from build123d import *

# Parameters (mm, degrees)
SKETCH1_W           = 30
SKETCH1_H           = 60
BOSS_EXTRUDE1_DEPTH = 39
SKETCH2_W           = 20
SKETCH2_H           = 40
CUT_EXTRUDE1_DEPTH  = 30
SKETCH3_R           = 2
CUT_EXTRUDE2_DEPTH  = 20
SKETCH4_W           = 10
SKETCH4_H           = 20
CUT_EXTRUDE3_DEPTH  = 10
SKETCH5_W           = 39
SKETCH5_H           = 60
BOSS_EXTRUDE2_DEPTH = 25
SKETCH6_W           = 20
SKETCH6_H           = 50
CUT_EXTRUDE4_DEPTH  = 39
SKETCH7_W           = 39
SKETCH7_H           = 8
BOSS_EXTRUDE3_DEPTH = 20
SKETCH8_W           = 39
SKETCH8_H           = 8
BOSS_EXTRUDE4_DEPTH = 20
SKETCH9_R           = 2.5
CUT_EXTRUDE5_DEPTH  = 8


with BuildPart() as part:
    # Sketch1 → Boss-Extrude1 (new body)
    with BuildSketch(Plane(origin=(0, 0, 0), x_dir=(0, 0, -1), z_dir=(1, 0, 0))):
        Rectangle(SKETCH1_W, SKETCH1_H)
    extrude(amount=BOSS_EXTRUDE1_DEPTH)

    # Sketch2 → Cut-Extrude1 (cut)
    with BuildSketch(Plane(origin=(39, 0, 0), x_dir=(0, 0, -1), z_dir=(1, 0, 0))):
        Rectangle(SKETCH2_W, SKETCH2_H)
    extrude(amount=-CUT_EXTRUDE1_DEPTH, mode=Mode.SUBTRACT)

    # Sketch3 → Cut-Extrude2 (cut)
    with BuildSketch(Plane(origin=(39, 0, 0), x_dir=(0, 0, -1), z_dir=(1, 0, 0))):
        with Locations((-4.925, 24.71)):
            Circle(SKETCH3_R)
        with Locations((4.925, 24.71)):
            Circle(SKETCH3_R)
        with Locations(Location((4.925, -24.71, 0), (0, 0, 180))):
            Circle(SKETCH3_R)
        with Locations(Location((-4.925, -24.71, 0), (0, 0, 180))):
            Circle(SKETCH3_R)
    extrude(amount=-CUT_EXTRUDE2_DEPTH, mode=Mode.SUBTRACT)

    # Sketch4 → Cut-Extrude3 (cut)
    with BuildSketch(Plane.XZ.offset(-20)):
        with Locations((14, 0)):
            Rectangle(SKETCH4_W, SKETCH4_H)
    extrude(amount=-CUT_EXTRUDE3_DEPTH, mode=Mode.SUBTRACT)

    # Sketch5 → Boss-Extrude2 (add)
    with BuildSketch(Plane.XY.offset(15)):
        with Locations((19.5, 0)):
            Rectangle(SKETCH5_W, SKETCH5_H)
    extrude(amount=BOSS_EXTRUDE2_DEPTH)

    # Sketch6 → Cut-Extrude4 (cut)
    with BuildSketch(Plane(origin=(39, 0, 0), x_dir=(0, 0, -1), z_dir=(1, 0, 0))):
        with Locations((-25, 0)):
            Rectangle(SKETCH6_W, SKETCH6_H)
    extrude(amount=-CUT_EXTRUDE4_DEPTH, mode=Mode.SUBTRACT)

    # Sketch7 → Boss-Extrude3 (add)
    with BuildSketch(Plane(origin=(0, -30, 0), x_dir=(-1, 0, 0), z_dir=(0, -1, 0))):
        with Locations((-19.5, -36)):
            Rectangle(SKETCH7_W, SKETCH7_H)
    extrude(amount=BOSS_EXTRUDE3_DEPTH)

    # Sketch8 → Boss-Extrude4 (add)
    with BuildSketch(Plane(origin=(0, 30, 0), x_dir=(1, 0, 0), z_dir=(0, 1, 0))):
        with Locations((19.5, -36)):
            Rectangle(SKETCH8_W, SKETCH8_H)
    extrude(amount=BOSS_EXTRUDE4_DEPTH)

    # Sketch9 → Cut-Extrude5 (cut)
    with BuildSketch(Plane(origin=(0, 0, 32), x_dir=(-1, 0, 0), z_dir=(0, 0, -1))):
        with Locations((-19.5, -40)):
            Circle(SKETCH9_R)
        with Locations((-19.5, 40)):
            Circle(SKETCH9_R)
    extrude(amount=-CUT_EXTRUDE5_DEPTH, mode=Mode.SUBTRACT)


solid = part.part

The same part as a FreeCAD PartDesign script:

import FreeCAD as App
import Part
import Sketcher


def add_polygon(sketch, points):
    """Adds a closed chain of lines whose ends are joined by coincident constraints."""
    first, n = sketch.GeometryCount, len(points)
    for a, b in zip(points, points[1:] + points[:1]):
        sketch.addGeometry(Part.LineSegment(App.Vector(*a, 0), App.Vector(*b, 0)), False)
    for i in range(n):
        sketch.addConstraint(Sketcher.Constraint("Coincident", first + i, 2, first + (i + 1) % n, 1))

doc = App.newDocument("Part")
body = doc.addObject("PartDesign::Body", "Body")

# Sketch on YZ plane
sketch1 = body.newObject("Sketcher::SketchObject", "Sketch")
sketch1.AttachmentSupport = (doc.getObject("YZ_Plane"), [""])
sketch1.MapMode = "FlatFace"
add_polygon(sketch1, [(30, 15), (-30, 15), (-30, -15), (30, -15)])  # lines 0-3
sketch1.addConstraint([
    Sketcher.Constraint("Horizontal", 0),
    Sketcher.Constraint("Vertical", 1),
    Sketcher.Constraint("Horizontal", 2),
    Sketcher.Constraint("Vertical", 3),
    Sketcher.Constraint("Symmetric", 0, 2, 2, 2, -1, 1),
    Sketcher.Constraint("DistanceX", 0, 2, 0, 1, 60.0),
    Sketcher.Constraint("DistanceY", 1, 2, 1, 1, 30.0),
])
pad1 = body.newObject("PartDesign::Pad", "Pad")
pad1.Profile = sketch1
pad1.Length = 39

# Sketch on YZ plane
sketch2 = body.newObject("Sketcher::SketchObject", "Sketch001")
sketch2.AttachmentSupport = (doc.getObject("YZ_Plane"), [""])
sketch2.MapMode = "FlatFace"
sketch2.AttachmentOffset = App.Placement(App.Vector(0, 0, 39), App.Rotation())
add_polygon(sketch2, [(20, 10), (-20, 10), (-20, -10), (20, -10)])  # lines 0-3
sketch2.addConstraint([
    Sketcher.Constraint("Horizontal", 0),
    Sketcher.Constraint("Vertical", 1),
    Sketcher.Constraint("Horizontal", 2),
    Sketcher.Constraint("Vertical", 3),
    Sketcher.Constraint("Symmetric", 0, 2, 2, 2, -1, 1),
    Sketcher.Constraint("DistanceX", 0, 2, 0, 1, 40.0),
    Sketcher.Constraint("DistanceY", 1, 2, 1, 1, 20.0),
])
pocket1 = body.newObject("PartDesign::Pocket", "Pocket")
pocket1.Profile = sketch2
pocket1.Length = 30

# Sketch on YZ plane
sketch3 = body.newObject("Sketcher::SketchObject", "Sketch002")
sketch3.AttachmentSupport = (doc.getObject("YZ_Plane"), [""])
sketch3.MapMode = "FlatFace"
sketch3.AttachmentOffset = App.Placement(App.Vector(0, 0, 39), App.Rotation())
sketch3.addGeometry([
    Part.Circle(App.Vector(24.7, 4.9, 0), App.Vector(0, 0, 1), 2),
    Part.Circle(App.Vector(24.7, -4.9, 0), App.Vector(0, 0, 1), 2),
    Part.Circle(App.Vector(-24.7, -4.9, 0), App.Vector(0, 0, 1), 2),
    Part.Circle(App.Vector(-24.7, 4.9, 0), App.Vector(0, 0, 1), 2),
], False)
sketch3.addConstraint([
    Sketcher.Constraint("Equal", 0, 1),
    Sketcher.Constraint("Equal", 1, 2),
    Sketcher.Constraint("Equal", 2, 3),
    Sketcher.Constraint("Symmetric", 0, 3, 2, 3, -1, 1),
    Sketcher.Constraint("Symmetric", 1, 3, 3, 3, -1, 1),
    Sketcher.Constraint("Symmetric", 1, 3, 2, 3, -2),
    Sketcher.Constraint("Diameter", 0, 4.0),
    Sketcher.Constraint("DistanceX", -1, 1, 0, 3, 24.71),
    Sketcher.Constraint("DistanceY", 1, 3, 0, 3, 9.85),
])
pocket2 = body.newObject("PartDesign::Pocket", "Pocket001")
pocket2.Profile = sketch3
pocket2.Length = 20

# Sketch on XZ plane
sketch4 = body.newObject("Sketcher::SketchObject", "Sketch003")
sketch4.AttachmentSupport = (doc.getObject("XZ_Plane"), [""])
sketch4.MapMode = "FlatFace"
sketch4.AttachmentOffset = App.Placement(App.Vector(0, 0, -20), App.Rotation())
add_polygon(sketch4, [(9, 10), (9, -10), (19, -10), (19, 10)])  # lines 0-3
sketch4.addConstraint([
    Sketcher.Constraint("Vertical", 0),
    Sketcher.Constraint("Horizontal", 1),
    Sketcher.Constraint("Vertical", 2),
    Sketcher.Constraint("Horizontal", 3),
    Sketcher.Constraint("DistanceX", 1, 1, 1, 2, 10.0),
    Sketcher.Constraint("DistanceY", 0, 2, 0, 1, 20.0),
    Sketcher.Constraint("DistanceX", -1, 1, 0, 2, 9.0),
    Sketcher.Constraint("DistanceY", 0, 2, -1, 1, 10.0),
])
pocket3 = body.newObject("PartDesign::Pocket", "Pocket002")
pocket3.Profile = sketch4
pocket3.Length = 10

# Sketch on XY plane
sketch5 = body.newObject("Sketcher::SketchObject", "Sketch004")
sketch5.AttachmentSupport = (doc.getObject("XY_Plane"), [""])
sketch5.MapMode = "FlatFace"
sketch5.AttachmentOffset = App.Placement(App.Vector(0, 0, 15), App.Rotation())
add_polygon(sketch5, [(0, 30), (0, -30), (39, -30), (39, 30)])  # lines 0-3
sketch5.addConstraint([
    Sketcher.Constraint("Vertical", 0),
    Sketcher.Constraint("Horizontal", 1),
    Sketcher.Constraint("Vertical", 2),
    Sketcher.Constraint("Horizontal", 3),
    Sketcher.Constraint("Symmetric", 0, 2, 3, 2, -1, 1),
    Sketcher.Constraint("DistanceX", 1, 1, 1, 2, 39.0),
    Sketcher.Constraint("DistanceY", 0, 2, 0, 1, 60.0),
])
pad2 = body.newObject("PartDesign::Pad", "Pad001")
pad2.Profile = sketch5
pad2.Length = 25

# Sketch on YZ plane
sketch6 = body.newObject("Sketcher::SketchObject", "Sketch005")
sketch6.AttachmentSupport = (doc.getObject("YZ_Plane"), [""])
sketch6.MapMode = "FlatFace"
sketch6.AttachmentOffset = App.Placement(App.Vector(0, 0, 39), App.Rotation())
add_polygon(sketch6, [(25, 35), (-25, 35), (-25, 15), (25, 15)])  # lines 0-3
sketch6.addConstraint([
    Sketcher.Constraint("Horizontal", 0),
    Sketcher.Constraint("Vertical", 1),
    Sketcher.Constraint("Horizontal", 2),
    Sketcher.Constraint("Vertical", 3),
    Sketcher.Constraint("DistanceX", 0, 2, 0, 1, 50.0),
    Sketcher.Constraint("DistanceY", 1, 2, 1, 1, 20.0),
    Sketcher.Constraint("DistanceX", 0, 2, -1, 1, 25.0),
    Sketcher.Constraint("DistanceY", -1, 1, 0, 2, 35.0),
])
pocket4 = body.newObject("PartDesign::Pocket", "Pocket003")
pocket4.Profile = sketch6
pocket4.Length = 39

# Sketch on XZ plane
sketch7 = body.newObject("Sketcher::SketchObject", "Sketch006")
sketch7.AttachmentSupport = (doc.getObject("XZ_Plane"), [""])
sketch7.MapMode = "FlatFace"
sketch7.AttachmentOffset = App.Placement(App.Vector(0, 0, 30), App.Rotation())
add_polygon(sketch7, [(39, 32), (39, 40), (0, 40), (0, 32)])  # lines 0-3
sketch7.addConstraint([
    Sketcher.Constraint("Vertical", 0),
    Sketcher.Constraint("Horizontal", 1),
    Sketcher.Constraint("Vertical", 2),
    Sketcher.Constraint("Horizontal", 3),
    Sketcher.Constraint("PointOnObject", 1, 2, -2),
    Sketcher.Constraint("DistanceX", 1, 2, 1, 1, 39.0),
    Sketcher.Constraint("DistanceY", 0, 1, 0, 2, 8.0),
    Sketcher.Constraint("DistanceY", -1, 1, 0, 2, 40.0),
])
pad3 = body.newObject("PartDesign::Pad", "Pad002")
pad3.Profile = sketch7
pad3.Length = 20

# Sketch on XZ plane
sketch8 = body.newObject("Sketcher::SketchObject", "Sketch007")
sketch8.AttachmentSupport = (doc.getObject("XZ_Plane"), [""])
sketch8.MapMode = "FlatFace"
sketch8.AttachmentOffset = App.Placement(App.Vector(0, 0, -30), App.Rotation())
add_polygon(sketch8, [(0, 32), (0, 40), (39, 40), (39, 32)])  # lines 0-3
sketch8.addConstraint([
    Sketcher.Constraint("Vertical", 0),
    Sketcher.Constraint("Horizontal", 1),
    Sketcher.Constraint("Vertical", 2),
    Sketcher.Constraint("Horizontal", 3),
    Sketcher.Constraint("PointOnObject", 0, 2, -2),
    Sketcher.Constraint("DistanceX", 1, 1, 1, 2, 39.0),
    Sketcher.Constraint("DistanceY", 0, 1, 0, 2, 8.0),
    Sketcher.Constraint("DistanceY", -1, 1, 0, 2, 40.0),
])
pad4 = body.newObject("PartDesign::Pad", "Pad003")
pad4.Profile = sketch8
pad4.Length = 20
pad4.Reversed = True

# Sketch on XY plane
sketch9 = body.newObject("Sketcher::SketchObject", "Sketch008")
sketch9.AttachmentSupport = (doc.getObject("XY_Plane"), [""])
sketch9.MapMode = "FlatFace"
sketch9.AttachmentOffset = App.Placement(App.Vector(0, 0, 32), App.Rotation())
sketch9.addGeometry([
    Part.Circle(App.Vector(19.5, -40, 0), App.Vector(0, 0, 1), 2.5),
    Part.Circle(App.Vector(19.5, 40, 0), App.Vector(0, 0, 1), 2.5),
], False)
sketch9.addConstraint([
    Sketcher.Constraint("Equal", 0, 1),
    Sketcher.Constraint("Symmetric", 0, 3, 1, 3, -1),
    Sketcher.Constraint("Diameter", 0, 5.0),
    Sketcher.Constraint("DistanceY", 0, 3, -1, 1, 40.0),
    Sketcher.Constraint("DistanceX", -1, 1, 0, 3, 19.5),
])
pocket5 = body.newObject("PartDesign::Pocket", "Pocket004")
pocket5.Profile = sketch9
pocket5.Length = 8
pocket5.Reversed = True

doc.recompute()
